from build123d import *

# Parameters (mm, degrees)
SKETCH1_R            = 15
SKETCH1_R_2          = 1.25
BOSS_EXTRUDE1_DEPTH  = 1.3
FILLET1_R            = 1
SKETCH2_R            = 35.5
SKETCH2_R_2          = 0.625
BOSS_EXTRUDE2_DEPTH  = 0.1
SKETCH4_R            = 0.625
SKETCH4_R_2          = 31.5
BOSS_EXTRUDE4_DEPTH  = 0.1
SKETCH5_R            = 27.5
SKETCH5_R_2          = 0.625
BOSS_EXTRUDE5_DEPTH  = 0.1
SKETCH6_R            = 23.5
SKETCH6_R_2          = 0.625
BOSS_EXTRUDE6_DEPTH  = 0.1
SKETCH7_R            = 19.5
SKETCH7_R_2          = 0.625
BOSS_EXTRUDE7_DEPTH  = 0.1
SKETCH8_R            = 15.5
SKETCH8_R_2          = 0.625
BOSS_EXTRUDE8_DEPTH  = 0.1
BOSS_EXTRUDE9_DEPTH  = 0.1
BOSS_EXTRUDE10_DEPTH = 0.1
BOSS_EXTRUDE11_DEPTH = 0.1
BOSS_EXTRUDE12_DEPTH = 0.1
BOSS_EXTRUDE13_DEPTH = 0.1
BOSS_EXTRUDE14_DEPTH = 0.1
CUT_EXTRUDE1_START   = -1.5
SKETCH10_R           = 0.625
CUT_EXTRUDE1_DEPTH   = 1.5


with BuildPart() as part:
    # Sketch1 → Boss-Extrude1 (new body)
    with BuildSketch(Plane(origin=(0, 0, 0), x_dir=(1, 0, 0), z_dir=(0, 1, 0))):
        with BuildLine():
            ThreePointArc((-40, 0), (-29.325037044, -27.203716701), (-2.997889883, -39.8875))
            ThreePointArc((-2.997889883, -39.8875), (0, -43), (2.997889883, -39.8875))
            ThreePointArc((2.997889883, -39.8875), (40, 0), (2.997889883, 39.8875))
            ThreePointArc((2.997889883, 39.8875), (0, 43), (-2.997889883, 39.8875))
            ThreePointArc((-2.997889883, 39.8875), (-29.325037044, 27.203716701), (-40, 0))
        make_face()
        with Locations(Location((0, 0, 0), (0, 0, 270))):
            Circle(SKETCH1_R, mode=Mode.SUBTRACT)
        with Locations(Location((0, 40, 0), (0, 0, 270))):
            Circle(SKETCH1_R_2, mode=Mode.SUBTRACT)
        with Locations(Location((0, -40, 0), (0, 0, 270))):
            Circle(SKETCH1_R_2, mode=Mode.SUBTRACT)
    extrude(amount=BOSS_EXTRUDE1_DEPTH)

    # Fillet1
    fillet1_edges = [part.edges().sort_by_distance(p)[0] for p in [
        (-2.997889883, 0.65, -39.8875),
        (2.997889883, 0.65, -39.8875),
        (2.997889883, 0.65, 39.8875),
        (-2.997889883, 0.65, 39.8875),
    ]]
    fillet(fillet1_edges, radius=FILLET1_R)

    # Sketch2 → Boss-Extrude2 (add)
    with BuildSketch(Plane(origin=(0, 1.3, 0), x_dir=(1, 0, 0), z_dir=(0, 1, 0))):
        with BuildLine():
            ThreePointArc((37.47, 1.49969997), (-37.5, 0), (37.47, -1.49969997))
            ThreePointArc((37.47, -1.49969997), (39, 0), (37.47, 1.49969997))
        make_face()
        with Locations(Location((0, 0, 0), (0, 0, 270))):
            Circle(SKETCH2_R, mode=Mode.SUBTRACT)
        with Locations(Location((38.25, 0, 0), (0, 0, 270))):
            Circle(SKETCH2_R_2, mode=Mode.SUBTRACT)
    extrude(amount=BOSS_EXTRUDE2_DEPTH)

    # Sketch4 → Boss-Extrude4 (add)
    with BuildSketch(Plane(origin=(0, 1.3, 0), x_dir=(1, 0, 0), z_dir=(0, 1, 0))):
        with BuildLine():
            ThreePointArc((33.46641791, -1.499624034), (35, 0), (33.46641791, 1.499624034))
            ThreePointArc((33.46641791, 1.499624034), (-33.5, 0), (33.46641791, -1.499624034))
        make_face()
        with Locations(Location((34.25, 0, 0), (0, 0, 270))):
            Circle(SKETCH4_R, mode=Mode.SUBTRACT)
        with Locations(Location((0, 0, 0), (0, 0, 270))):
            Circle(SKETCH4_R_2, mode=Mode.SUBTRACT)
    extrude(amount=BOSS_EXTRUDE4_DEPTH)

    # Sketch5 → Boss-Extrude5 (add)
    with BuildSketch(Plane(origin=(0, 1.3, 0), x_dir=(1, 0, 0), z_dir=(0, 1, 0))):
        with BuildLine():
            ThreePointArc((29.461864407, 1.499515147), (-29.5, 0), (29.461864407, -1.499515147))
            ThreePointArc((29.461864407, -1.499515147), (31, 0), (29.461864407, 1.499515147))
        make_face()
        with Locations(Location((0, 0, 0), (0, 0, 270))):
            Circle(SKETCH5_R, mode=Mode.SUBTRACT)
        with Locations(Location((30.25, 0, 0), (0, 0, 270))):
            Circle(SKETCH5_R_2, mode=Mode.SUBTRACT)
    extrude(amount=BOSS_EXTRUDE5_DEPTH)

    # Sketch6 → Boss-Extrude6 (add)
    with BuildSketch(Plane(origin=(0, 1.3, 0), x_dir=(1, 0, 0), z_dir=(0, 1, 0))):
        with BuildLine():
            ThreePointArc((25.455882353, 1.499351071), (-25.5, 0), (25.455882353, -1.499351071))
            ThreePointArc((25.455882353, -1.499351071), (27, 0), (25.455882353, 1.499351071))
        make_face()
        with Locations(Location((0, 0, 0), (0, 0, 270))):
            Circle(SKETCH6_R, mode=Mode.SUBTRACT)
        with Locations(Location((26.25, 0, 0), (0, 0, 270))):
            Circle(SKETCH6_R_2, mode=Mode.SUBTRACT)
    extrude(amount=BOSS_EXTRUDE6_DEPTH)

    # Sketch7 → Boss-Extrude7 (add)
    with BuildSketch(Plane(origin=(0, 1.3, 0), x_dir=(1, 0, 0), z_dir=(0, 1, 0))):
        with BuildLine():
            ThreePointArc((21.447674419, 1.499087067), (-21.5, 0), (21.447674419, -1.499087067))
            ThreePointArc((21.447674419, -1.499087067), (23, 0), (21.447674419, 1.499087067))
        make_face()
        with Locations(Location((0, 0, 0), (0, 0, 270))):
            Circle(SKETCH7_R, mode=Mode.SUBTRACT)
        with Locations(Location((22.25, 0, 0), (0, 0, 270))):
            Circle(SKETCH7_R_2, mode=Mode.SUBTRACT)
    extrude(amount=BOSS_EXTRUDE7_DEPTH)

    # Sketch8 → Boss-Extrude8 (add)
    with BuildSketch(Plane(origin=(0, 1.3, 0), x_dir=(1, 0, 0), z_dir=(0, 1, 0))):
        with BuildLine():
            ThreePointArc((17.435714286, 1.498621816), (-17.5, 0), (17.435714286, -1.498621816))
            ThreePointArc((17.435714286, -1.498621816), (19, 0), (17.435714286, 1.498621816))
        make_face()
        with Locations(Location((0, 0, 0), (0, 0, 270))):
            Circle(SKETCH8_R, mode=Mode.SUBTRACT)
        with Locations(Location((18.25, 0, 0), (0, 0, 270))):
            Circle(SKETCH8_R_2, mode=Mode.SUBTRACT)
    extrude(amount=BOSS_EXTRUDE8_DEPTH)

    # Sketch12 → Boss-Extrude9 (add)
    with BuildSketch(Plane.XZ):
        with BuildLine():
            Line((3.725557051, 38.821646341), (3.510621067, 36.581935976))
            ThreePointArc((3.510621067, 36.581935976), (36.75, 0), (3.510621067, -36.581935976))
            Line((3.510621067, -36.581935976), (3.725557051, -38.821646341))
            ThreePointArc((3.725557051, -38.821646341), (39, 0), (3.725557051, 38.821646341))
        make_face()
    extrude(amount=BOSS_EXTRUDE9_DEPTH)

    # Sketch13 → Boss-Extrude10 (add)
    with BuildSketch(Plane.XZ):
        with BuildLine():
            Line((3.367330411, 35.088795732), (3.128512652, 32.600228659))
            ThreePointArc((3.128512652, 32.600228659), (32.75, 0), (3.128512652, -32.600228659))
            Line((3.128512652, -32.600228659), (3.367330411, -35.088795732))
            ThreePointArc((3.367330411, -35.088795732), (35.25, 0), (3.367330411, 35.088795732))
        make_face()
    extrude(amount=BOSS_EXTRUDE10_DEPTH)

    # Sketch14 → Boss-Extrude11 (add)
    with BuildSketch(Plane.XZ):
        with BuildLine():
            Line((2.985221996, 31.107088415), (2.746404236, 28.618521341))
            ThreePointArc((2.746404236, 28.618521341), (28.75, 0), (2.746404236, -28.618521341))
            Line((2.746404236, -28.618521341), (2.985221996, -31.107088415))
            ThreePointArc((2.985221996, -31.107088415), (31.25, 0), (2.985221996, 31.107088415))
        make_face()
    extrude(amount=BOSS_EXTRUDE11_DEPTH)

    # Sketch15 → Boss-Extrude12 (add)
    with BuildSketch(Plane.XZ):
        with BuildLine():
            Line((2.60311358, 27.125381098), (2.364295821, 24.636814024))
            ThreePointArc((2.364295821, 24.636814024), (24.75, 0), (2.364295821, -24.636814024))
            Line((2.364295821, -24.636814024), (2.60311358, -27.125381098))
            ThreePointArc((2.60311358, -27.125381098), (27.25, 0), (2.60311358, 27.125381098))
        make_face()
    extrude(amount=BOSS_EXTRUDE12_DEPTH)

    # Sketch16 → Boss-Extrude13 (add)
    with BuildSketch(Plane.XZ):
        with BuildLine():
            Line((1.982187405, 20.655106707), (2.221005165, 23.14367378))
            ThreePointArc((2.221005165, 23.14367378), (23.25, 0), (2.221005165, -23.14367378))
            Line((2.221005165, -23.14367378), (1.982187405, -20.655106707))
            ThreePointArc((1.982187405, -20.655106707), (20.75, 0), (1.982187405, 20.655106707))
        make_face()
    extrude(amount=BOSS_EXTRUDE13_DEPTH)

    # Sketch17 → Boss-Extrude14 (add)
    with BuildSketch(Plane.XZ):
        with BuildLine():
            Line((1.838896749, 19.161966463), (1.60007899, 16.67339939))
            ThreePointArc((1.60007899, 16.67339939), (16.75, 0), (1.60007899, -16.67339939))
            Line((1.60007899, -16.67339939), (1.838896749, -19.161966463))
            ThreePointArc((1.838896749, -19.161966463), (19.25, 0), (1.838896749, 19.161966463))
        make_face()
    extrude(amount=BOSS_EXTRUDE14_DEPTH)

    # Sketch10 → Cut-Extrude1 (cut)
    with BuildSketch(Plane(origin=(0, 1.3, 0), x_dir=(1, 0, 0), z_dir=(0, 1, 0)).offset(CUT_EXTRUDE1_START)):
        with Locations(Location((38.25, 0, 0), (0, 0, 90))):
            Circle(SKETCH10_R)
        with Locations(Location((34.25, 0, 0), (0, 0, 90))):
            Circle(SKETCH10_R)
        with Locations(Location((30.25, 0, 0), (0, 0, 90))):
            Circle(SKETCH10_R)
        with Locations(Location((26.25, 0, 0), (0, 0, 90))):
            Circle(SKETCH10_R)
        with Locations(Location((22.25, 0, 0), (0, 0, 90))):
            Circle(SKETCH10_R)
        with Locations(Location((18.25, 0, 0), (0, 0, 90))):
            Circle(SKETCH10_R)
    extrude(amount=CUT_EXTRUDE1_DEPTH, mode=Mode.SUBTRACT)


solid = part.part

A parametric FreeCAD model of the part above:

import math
import FreeCAD as App
import Part
import Sketcher
from FreeCAD import Vector


def edges_at(feature, points):
    """Names of the edges that pass closest to the given points."""
    edges = feature.Shape.Edges
    near = lambda p: min(range(len(edges)), key=lambda i: edges[i].distToShape(Part.Vertex(*p))[0])
    return sorted({f"Edge{near(p) + 1}" for p in points})

doc = App.newDocument("Part")
body = doc.addObject("PartDesign::Body", "Body")

# Sketch on XZ plane
sketch1 = doc.addObject("Sketcher::SketchObject", "Sketch")
body.addObject(sketch1)
sketch1.AttachmentSupport = (doc.XZ_Plane, [""])
sketch1.MapMode = "FlatFace"
sketch1.addGeometry([
    Part.ArcOfCircle(Part.Circle(Vector(0, 0, 0), Vector(0, 0, 1), 40), math.radians(94), math.radians(180)),  # 0
    Part.ArcOfCircle(Part.Circle(Vector(0, 40, 0), Vector(0, 0, 1), 3), math.radians(-2), math.radians(182)),  # 1
    Part.ArcOfCircle(Part.Circle(Vector(0, 0, 0), Vector(0, 0, 1), 40), math.radians(-86), math.radians(86)),  # 2
    Part.ArcOfCircle(Part.Circle(Vector(0, -40, 0), Vector(0, 0, 1), 3), math.radians(178), math.radians(362)),  # 3
    Part.ArcOfCircle(Part.Circle(Vector(0, 0, 0), Vector(0, 0, 1), 40), math.radians(-180), math.radians(-94)),  # 4
    Part.Circle(Vector(0, 40, 0), Vector(0, 0, 1), 1.2),  # 5
    Part.Circle(Vector(0, 0, 0), Vector(0, 0, 1), 15),  # 6
    Part.Circle(Vector(0, -40, 0), Vector(0, 0, 1), 1.2),  # 7
], False)
sketch1.addConstraint([
    Sketcher.Constraint("Coincident", 0, 1, 1, 2),
    Sketcher.Constraint("Coincident", 1, 1, 2, 2),
    Sketcher.Constraint("Coincident", 2, 1, 3, 2),
    Sketcher.Constraint("Coincident", 3, 1, 4, 2),
    Sketcher.Constraint("Tangent", 4, 1, 0, 2),
    Sketcher.Constraint("Coincident", 0, 3, -1, 1),
    Sketcher.Constraint("Coincident", 2, 3, -1, 1),
    Sketcher.Constraint("Coincident", 6, 3, -1, 1),
    Sketcher.Constraint("Coincident", 5, 3, 1, 3),
    Sketcher.Constraint("Coincident", 7, 3, 3, 3),
    Sketcher.Constraint("Equal", 0, 2),
    Sketcher.Constraint("Equal", 1, 3),
    Sketcher.Constraint("Equal", 2, 4),
    Sketcher.Constraint("Equal", 5, 7),
    Sketcher.Constraint("Symmetric", 1, 3, 3, 3, -1, 1),
    Sketcher.Constraint("PointOnObject", 1, 3, -2),
    Sketcher.Constraint("PointOnObject", 4, 1, -1),
    Sketcher.Constraint("Diameter", 6, 30.0),
    Sketcher.Constraint("Radius", 0, 40.0),
    Sketcher.Constraint("Radius", 1, 3.0),
    Sketcher.Constraint("Diameter", 5, 2.5),
    Sketcher.Constraint("DistanceY", -1, 1, 1, 3, 40.0),
])
pad1 = doc.addObject("PartDesign::Pad", "Pad")
body.addObject(pad1)
pad1.Profile = sketch1
pad1.Length = 1.3
pad1.Reversed = True
doc.recompute()

fillet = doc.addObject("PartDesign::Fillet", "Fillet")
body.addObject(fillet)
fillet.Base = (pad1, edges_at(pad1, [
    (-2.998, 0.65, -39.888),
    (2.998, 0.65, -39.888),
    (2.998, 0.65, 39.888),
    (-2.998, 0.65, 39.888),
]))
fillet.Radius = 1

# Sketch on XZ plane
sketch2 = doc.addObject("Sketcher::SketchObject", "Sketch001")
body.addObject(sketch2)
sketch2.AttachmentSupport = (doc.XZ_Plane, [""])
sketch2.MapMode = "FlatFace"
sketch2.AttachmentOffset = App.Placement(Vector(0, 0, -1.3), App.Rotation())
sketch2.addGeometry([
    Part.ArcOfCircle(Part.Circle(Vector(0, 0, 0), Vector(0, 0, 1), 37.5), math.radians(2), math.radians(358)),
    Part.ArcOfCircle(Part.Circle(Vector(37.5, 0, 0), Vector(0, 0, 1), 1.5), math.radians(-91), math.radians(91)),
    Part.Circle(Vector(0, 0, 0), Vector(0, 0, 1), 35.5),
    Part.Circle(Vector(38.2, 0, 0), Vector(0, 0, 1), 0.6),
], False)
sketch2.addConstraint([
    Sketcher.Constraint("Coincident", 0, 1, 1, 2),
    Sketcher.Constraint("Coincident", 1, 1, 0, 2),
    Sketcher.Constraint("Coincident", 0, 3, -1, 1),
    Sketcher.Constraint("Coincident", 2, 3, -1, 1),
    Sketcher.Constraint("PointOnObject", 1, 3, -1),
    Sketcher.Constraint("PointOnObject", 3, 3, -1),
    Sketcher.Constraint("Diameter", 2, 71.0),
    Sketcher.Constraint("Radius", 0, 37.5),
    Sketcher.Constraint("Radius", 1, 1.5),
    Sketcher.Constraint("Diameter", 3, 1.25),
    Sketcher.Constraint("DistanceX", -1, 1, 1, 3, 37.5),
    Sketcher.Constraint("DistanceX", -1, 1, 3, 3, 38.25),
])
pad2 = doc.addObject("PartDesign::Pad", "Pad001")
body.addObject(pad2)
pad2.Profile = sketch2
pad2.Length = 0.1
pad2.Reversed = True

# Sketch on XZ plane
sketch3 = doc.addObject("Sketcher::SketchObject", "Sketch002")
body.addObject(sketch3)
sketch3.AttachmentSupport = (doc.XZ_Plane, [""])
sketch3.MapMode = "FlatFace"
sketch3.AttachmentOffset = App.Placement(Vector(0, 0, -1.3), App.Rotation())
sketch3.addGeometry([
    Part.ArcOfCircle(Part.Circle(Vector(33.5, 0, 0), Vector(0, 0, 1), 1.5), math.radians(-91), math.radians(91)),
    Part.ArcOfCircle(Part.Circle(Vector(0, 0, 0), Vector(0, 0, 1), 33.5), math.radians(3), math.radians(357)),
    Part.Circle(Vector(0, 0, 0), Vector(0, 0, 1), 31.5),
    Part.Circle(Vector(34.2, 0, 0), Vector(0, 0, 1), 0.6),
], False)
sketch3.addConstraint([
    Sketcher.Constraint("Coincident", 0, 1, 1, 2),
    Sketcher.Constraint("Coincident", 1, 1, 0, 2),
    Sketcher.Constraint("Coincident", 1, 3, -1, 1),
    Sketcher.Constraint("Coincident", 2, 3, -1, 1),
    Sketcher.Constraint("PointOnObject", 0, 3, -1),
    Sketcher.Constraint("PointOnObject", 3, 3, -1),
    Sketcher.Constraint("Diameter", 2, 63.0),
    Sketcher.Constraint("Radius", 0, 1.5),
    Sketcher.Constraint("Radius", 1, 33.5),
    Sketcher.Constraint("Diameter", 3, 1.25),
    Sketcher.Constraint("DistanceX", -1, 1, 0, 3, 33.5),
    Sketcher.Constraint("DistanceX", -1, 1, 3, 3, 34.25),
])
pad3 = doc.addObject("PartDesign::Pad", "Pad002")
body.addObject(pad3)
pad3.Profile = sketch3
pad3.Length = 0.1
pad3.Reversed = True

# Sketch on XZ plane
sketch4 = doc.addObject("Sketcher::SketchObject", "Sketch003")
body.addObject(sketch4)
sketch4.AttachmentSupport = (doc.XZ_Plane, [""])
sketch4.MapMode = "FlatFace"
sketch4.AttachmentOffset = App.Placement(Vector(0, 0, -1.3), App.Rotation())
sketch4.addGeometry([
    Part.ArcOfCircle(Part.Circle(Vector(0, 0, 0), Vector(0, 0, 1), 29.5), math.radians(3), math.radians(357)),
    Part.ArcOfCircle(Part.Circle(Vector(29.5, 0, 0), Vector(0, 0, 1), 1.5), math.radians(-91), math.radians(91)),
    Part.Circle(Vector(0, 0, 0), Vector(0, 0, 1), 27.5),
    Part.Circle(Vector(30.2, 0, 0), Vector(0, 0, 1), 0.6),
], False)
sketch4.addConstraint([
    Sketcher.Constraint("Coincident", 0, 1, 1, 2),
    Sketcher.Constraint("Coincident", 1, 1, 0, 2),
    Sketcher.Constraint("Coincident", 0, 3, -1, 1),
    Sketcher.Constraint("Coincident", 2, 3, -1, 1),
    Sketcher.Constraint("PointOnObject", 1, 3, -1),
    Sketcher.Constraint("PointOnObject", 3, 3, -1),
    Sketcher.Constraint("Diameter", 2, 55.0),
    Sketcher.Constraint("Radius", 0, 29.5),
    Sketcher.Constraint("Radius", 1, 1.5),
    Sketcher.Constraint("Diameter", 3, 1.25),
    Sketcher.Constraint("DistanceX", -1, 1, 1, 3, 29.5),
    Sketcher.Constraint("DistanceX", -1, 1, 3, 3, 30.25),
])
pad4 = doc.addObject("PartDesign::Pad", "Pad003")
body.addObject(pad4)
pad4.Profile = sketch4
pad4.Length = 0.1
pad4.Reversed = True

# Sketch on XZ plane
sketch5 = doc.addObject("Sketcher::SketchObject", "Sketch004")
body.addObject(sketch5)
sketch5.AttachmentSupport = (doc.XZ_Plane, [""])
sketch5.MapMode = "FlatFace"
sketch5.AttachmentOffset = App.Placement(Vector(0, 0, -1.3), App.Rotation())
sketch5.addGeometry([
    Part.ArcOfCircle(Part.Circle(Vector(0, 0, 0), Vector(0, 0, 1), 25.5), math.radians(3), math.radians(357)),
    Part.ArcOfCircle(Part.Circle(Vector(25.5, 0, 0), Vector(0, 0, 1), 1.5), math.radians(-92), math.radians(92)),
    Part.Circle(Vector(0, 0, 0), Vector(0, 0, 1), 23.5),
    Part.Circle(Vector(26.2, 0, 0), Vector(0, 0, 1), 0.6),
], False)
sketch5.addConstraint([
    Sketcher.Constraint("Coincident", 0, 1, 1, 2),
    Sketcher.Constraint("Coincident", 1, 1, 0, 2),
    Sketcher.Constraint("Coincident", 0, 3, -1, 1),
    Sketcher.Constraint("Coincident", 2, 3, -1, 1),
    Sketcher.Constraint("PointOnObject", 1, 3, -1),
    Sketcher.Constraint("PointOnObject", 3, 3, -1),
    Sketcher.Constraint("Diameter", 2, 47.0),
    Sketcher.Constraint("Radius", 0, 25.5),
    Sketcher.Constraint("Radius", 1, 1.5),
    Sketcher.Constraint("Diameter", 3, 1.25),
    Sketcher.Constraint("DistanceX", -1, 1, 1, 3, 25.5),
    Sketcher.Constraint("DistanceX", -1, 1, 3, 3, 26.25),
])
pad5 = doc.addObject("PartDesign::Pad", "Pad004")
body.addObject(pad5)
pad5.Profile = sketch5
pad5.Length = 0.1
pad5.Reversed = True

# Sketch on XZ plane
sketch6 = doc.addObject("Sketcher::SketchObject", "Sketch005")
body.addObject(sketch6)
sketch6.AttachmentSupport = (doc.XZ_Plane, [""])
sketch6.MapMode = "FlatFace"
sketch6.AttachmentOffset = App.Placement(Vector(0, 0, -1.3), App.Rotation())
sketch6.addGeometry([
    Part.ArcOfCircle(Part.Circle(Vector(0, 0, 0), Vector(0, 0, 1), 21.5), math.radians(4), math.radians(356)),
    Part.ArcOfCircle(Part.Circle(Vector(21.5, 0, 0), Vector(0, 0, 1), 1.5), math.radians(-92), math.radians(92)),
    Part.Circle(Vector(0, 0, 0), Vector(0, 0, 1), 19.5),
    Part.Circle(Vector(22.2, 0, 0), Vector(0, 0, 1), 0.6),
], False)
sketch6.addConstraint([
    Sketcher.Constraint("Coincident", 0, 1, 1, 2),
    Sketcher.Constraint("Coincident", 1, 1, 0, 2),
    Sketcher.Constraint("Coincident", 0, 3, -1, 1),
    Sketcher.Constraint("Coincident", 2, 3, -1, 1),
    Sketcher.Constraint("PointOnObject", 1, 3, -1),
    Sketcher.Constraint("PointOnObject", 3, 3, -1),
    Sketcher.Constraint("Diameter", 2, 39.0),
    Sketcher.Constraint("Radius", 0, 21.5),
    Sketcher.Constraint("Radius", 1, 1.5),
    Sketcher.Constraint("Diameter", 3, 1.25),
    Sketcher.Constraint("DistanceX", -1, 1, 1, 3, 21.5),
    Sketcher.Constraint("DistanceX", -1, 1, 3, 3, 22.25),
])
pad6 = doc.addObject("PartDesign::Pad", "Pad005")
body.addObject(pad6)
pad6.Profile = sketch6
pad6.Length = 0.1
pad6.Reversed = True

# Sketch on XZ plane
sketch7 = doc.addObject("Sketcher::SketchObject", "Sketch006")
body.addObject(sketch7)
sketch7.AttachmentSupport = (doc.XZ_Plane, [""])
sketch7.MapMode = "FlatFace"
sketch7.AttachmentOffset = App.Placement(Vector(0, 0, -1.3), App.Rotation())
sketch7.addGeometry([
    Part.ArcOfCircle(Part.Circle(Vector(0, 0, 0), Vector(0, 0, 1), 17.5), math.radians(5), math.radians(355)),
    Part.ArcOfCircle(Part.Circle(Vector(17.5, 0, 0), Vector(0, 0, 1), 1.5), math.radians(-92), math.radians(92)),
    Part.Circle(Vector(0, 0, 0), Vector(0, 0, 1), 15.5),
    Part.Circle(Vector(18.2, 0, 0), Vector(0, 0, 1), 0.6),
], False)
sketch7.addConstraint([
    Sketcher.Constraint("Coincident", 0, 1, 1, 2),
    Sketcher.Constraint("Coincident", 1, 1, 0, 2),
    Sketcher.Constraint("Coincident", 0, 3, -1, 1),
    Sketcher.Constraint("Coincident", 2, 3, -1, 1),
    Sketcher.Constraint("PointOnObject", 1, 3, -1),
    Sketcher.Constraint("PointOnObject", 3, 3, -1),
    Sketcher.Constraint("Diameter", 2, 31.0),
    Sketcher.Constraint("Radius", 0, 17.5),
    Sketcher.Constraint("Radius", 1, 1.5),
    Sketcher.Constraint("Diameter", 3, 1.25),
    Sketcher.Constraint("DistanceX", -1, 1, 1, 3, 17.5),
    Sketcher.Constraint("DistanceX", -1, 1, 3, 3, 18.25),
])
pad7 = doc.addObject("PartDesign::Pad", "Pad006")
body.addObject(pad7)
pad7.Profile = sketch7
pad7.Length = 0.1
pad7.Reversed = True

# Sketch on XZ plane
sketch8 = doc.addObject("Sketcher::SketchObject", "Sketch007")
body.addObject(sketch8)
sketch8.AttachmentSupport = (doc.XZ_Plane, [""])
sketch8.MapMode = "FlatFace"
sketch8.addGeometry([
    Part.LineSegment(Vector(3.7, 38.8, 0), Vector(3.5, 36.6, 0)),
    Part.ArcOfCircle(Part.Circle(Vector(0, 0, 0), Vector(0, 0, 1), 36.8), math.radians(-85), math.radians(85)),
    Part.LineSegment(Vector(3.5, -36.6, 0), Vector(3.7, -38.8, 0)),
    Part.ArcOfCircle(Part.Circle(Vector(0, 0, 0), Vector(0, 0, 1), 39), math.radians(-85), math.radians(85)),
], False)
sketch8.addConstraint([
    Sketcher.Constraint("Coincident", 0, 2, 1, 2),
    Sketcher.Constraint("Coincident", 1, 1, 2, 1),
    Sketcher.Constraint("Coincident", 2, 2, 3, 1),
    Sketcher.Constraint("Coincident", 3, 2, 0, 1),
    Sketcher.Constraint("Coincident", 1, 3, -1, 1),
    Sketcher.Constraint("Coincident", 3, 3, -1, 1),
    Sketcher.Constraint("Vertical", 0, 2, 1, 1),
    Sketcher.Constraint("Vertical", 2, 2, 3, 2),
    Sketcher.Constraint("Radius", 3, 39.0),
    Sketcher.Constraint("Radius", 1, 36.75),
    Sketcher.Constraint("DistanceX", -1, 1, 0, 2, 3.510621),
    Sketcher.Constraint("DistanceY", 2, 2, 1, 1, 2.23971),
])
pad8 = doc.addObject("PartDesign::Pad", "Pad007")
body.addObject(pad8)
pad8.Profile = sketch8
pad8.Length = 0.1

# Sketch on XZ plane
sketch9 = doc.addObject("Sketcher::SketchObject", "Sketch008")
body.addObject(sketch9)
sketch9.AttachmentSupport = (doc.XZ_Plane, [""])
sketch9.MapMode = "FlatFace"
sketch9.addGeometry([
    Part.LineSegment(Vector(3.4, 35.1, 0), Vector(3.1, 32.6, 0)),
    Part.ArcOfCircle(Part.Circle(Vector(0, 0, 0), Vector(0, 0, 1), 32.8), math.radians(-85), math.radians(85)),
    Part.LineSegment(Vector(3.1, -32.6, 0), Vector(3.4, -35.1, 0)),
    Part.ArcOfCircle(Part.Circle(Vector(0, 0, 0), Vector(0, 0, 1), 35.2), math.radians(-85), math.radians(85)),
], False)
sketch9.addConstraint([
    Sketcher.Constraint("Coincident", 0, 2, 1, 2),
    Sketcher.Constraint("Coincident", 1, 1, 2, 1),
    Sketcher.Constraint("Coincident", 2, 2, 3, 1),
    Sketcher.Constraint("Coincident", 3, 2, 0, 1),
    Sketcher.Constraint("Coincident", 1, 3, -1, 1),
    Sketcher.Constraint("Coincident", 3, 3, -1, 1),
    Sketcher.Constraint("Vertical", 0, 2, 1, 1),
    Sketcher.Constraint("Vertical", 2, 2, 3, 2),
    Sketcher.Constraint("Radius", 1, 32.75),
    Sketcher.Constraint("Radius", 3, 35.25),
    Sketcher.Constraint("DistanceY", -1, 1, 0, 2, 32.600229),
    Sketcher.Constraint("DistanceX", -1, 1, 2, 2, 3.36733),
])
pad9 = doc.addObject("PartDesign::Pad", "Pad008")
body.addObject(pad9)
pad9.Profile = sketch9
pad9.Length = 0.1

# Sketch on XZ plane
sketch10 = doc.addObject("Sketcher::SketchObject", "Sketch009")
body.addObject(sketch10)
sketch10.AttachmentSupport = (doc.XZ_Plane, [""])
sketch10.MapMode = "FlatFace"
sketch10.addGeometry([
    Part.LineSegment(Vector(3, 31.1, 0), Vector(2.7, 28.6, 0)),
    Part.ArcOfCircle(Part.Circle(Vector(0, 0, 0), Vector(0, 0, 1), 28.7), math.radians(-85), math.radians(85)),
    Part.LineSegment(Vector(2.7, -28.6, 0), Vector(3, -31.1, 0)),
    Part.ArcOfCircle(Part.Circle(Vector(0, 0, 0), Vector(0, 0, 1), 31.2), math.radians(-85), math.radians(85)),
], False)
sketch10.addConstraint([
    Sketcher.Constraint("Coincident", 0, 2, 1, 2),
    Sketcher.Constraint("Coincident", 1, 1, 2, 1),
    Sketcher.Constraint("Coincident", 2, 2, 3, 1),
    Sketcher.Constraint("Coincident", 3, 2, 0, 1),
    Sketcher.Constraint("Coincident", 1, 3, -1, 1),
    Sketcher.Constraint("Coincident", 3, 3, -1, 1),
    Sketcher.Constraint("Vertical", 0, 2, 1, 1),
    Sketcher.Constraint("Vertical", 2, 2, 3, 2),
    Sketcher.Constraint("Radius", 1, 28.75),
    Sketcher.Constraint("Radius", 3, 31.25),
    Sketcher.Constraint("DistanceY", -1, 1, 0, 2, 28.618521),
    Sketcher.Constraint("DistanceX", -1, 1, 2, 2, 2.985222),
])
pad10 = doc.addObject("PartDesign::Pad", "Pad009")
body.addObject(pad10)
pad10.Profile = sketch10
pad10.Length = 0.1

# Sketch on XZ plane
sketch11 = doc.addObject("Sketcher::SketchObject", "Sketch010")
body.addObject(sketch11)
sketch11.AttachmentSupport = (doc.XZ_Plane, [""])
sketch11.MapMode = "FlatFace"
sketch11.addGeometry([
    Part.LineSegment(Vector(2.6, 27.1, 0), Vector(2.4, 24.6, 0)),
    Part.ArcOfCircle(Part.Circle(Vector(0, 0, 0), Vector(0, 0, 1), 24.8), math.radians(-85), math.radians(85)),
    Part.LineSegment(Vector(2.4, -24.6, 0), Vector(2.6, -27.1, 0)),
    Part.ArcOfCircle(Part.Circle(Vector(0, 0, 0), Vector(0, 0, 1), 27.2), math.radians(-85), math.radians(85)),
], False)
sketch11.addConstraint([
    Sketcher.Constraint("Coincident", 0, 2, 1, 2),
    Sketcher.Constraint("Coincident", 1, 1, 2, 1),
    Sketcher.Constraint("Coincident", 2, 2, 3, 1),
    Sketcher.Constraint("Coincident", 3, 2, 0, 1),
    Sketcher.Constraint("Coincident", 1, 3, -1, 1),
    Sketcher.Constraint("Coincident", 3, 3, -1, 1),
    Sketcher.Constraint("Vertical", 0, 2, 1, 1),
    Sketcher.Constraint("Vertical", 2, 2, 3, 2),
    Sketcher.Constraint("Radius", 1, 24.75),
    Sketcher.Constraint("Radius", 3, 27.25),
    Sketcher.Constraint("DistanceY", 2, 2, -1, 1, 27.125381),
    Sketcher.Constraint("DistanceY", 1, 1, 0, 2, 49.273628),
])
pad11 = doc.addObject("PartDesign::Pad", "Pad010")
body.addObject(pad11)
pad11.Profile = sketch11
pad11.Length = 0.1

# Sketch on XZ plane
sketch12 = doc.addObject("Sketcher::SketchObject", "Sketch011")
body.addObject(sketch12)
sketch12.AttachmentSupport = (doc.XZ_Plane, [""])
sketch12.MapMode = "FlatFace"
sketch12.addGeometry([
    Part.LineSegment(Vector(2.2, 23.1, 0), Vector(2, 20.7, 0)),
    Part.ArcOfCircle(Part.Circle(Vector(0, 0, 0), Vector(0, 0, 1), 20.8), math.radians(-85), math.radians(85)),
    Part.LineSegment(Vector(2, -20.7, 0), Vector(2.2, -23.1, 0)),
    Part.ArcOfCircle(Part.Circle(Vector(0, 0, 0), Vector(0, 0, 1), 23.2), math.radians(-85), math.radians(85)),
], False)
sketch12.addConstraint([
    Sketcher.Constraint("Coincident", 0, 2, 1, 2),
    Sketcher.Constraint("Coincident", 1, 1, 2, 1),
    Sketcher.Constraint("Coincident", 2, 2, 3, 1),
    Sketcher.Constraint("Coincident", 3, 2, 0, 1),
    Sketcher.Constraint("Coincident", 1, 3, -1, 1),
    Sketcher.Constraint("Coincident", 3, 3, -1, 1),
    Sketcher.Constraint("Vertical", 0, 2, 1, 1),
    Sketcher.Constraint("Vertical", 2, 2, 3, 2),
    Sketcher.Constraint("Radius", 1, 20.75),
    Sketcher.Constraint("Radius", 3, 23.25),
    Sketcher.Constraint("DistanceY", 2, 2, 0, 2, 43.79878),
    Sketcher.Constraint("DistanceX", -1, 1, 0, 2, 1.982187),
])
pad12 = doc.addObject("PartDesign::Pad", "Pad011")
body.addObject(pad12)
pad12.Profile = sketch12
pad12.Length = 0.1

# Sketch on XZ plane
sketch13 = doc.addObject("Sketcher::SketchObject", "Sketch012")
body.addObject(sketch13)
sketch13.AttachmentSupport = (doc.XZ_Plane, [""])
sketch13.MapMode = "FlatFace"
sketch13.addGeometry([
    Part.LineSegment(Vector(1.8, 19.2, 0), Vector(1.6, 16.7, 0)),
    Part.ArcOfCircle(Part.Circle(Vector(0, 0, 0), Vector(0, 0, 1), 16.8), math.radians(-85), math.radians(85)),
    Part.LineSegment(Vector(1.6, -16.7, 0), Vector(1.8, -19.2, 0)),
    Part.ArcOfCircle(Part.Circle(Vector(0, 0, 0), Vector(0, 0, 1), 19.2), math.radians(-85), math.radians(85)),
], False)
sketch13.addConstraint([
    Sketcher.Constraint("Coincident", 0, 2, 1, 2),
    Sketcher.Constraint("Coincident", 1, 1, 2, 1),
    Sketcher.Constraint("Coincident", 2, 2, 3, 1),
    Sketcher.Constraint("Coincident", 3, 2, 0, 1),
    Sketcher.Constraint("Coincident", 1, 3, -1, 1),
    Sketcher.Constraint("Coincident", 3, 3, -1, 1),
    Sketcher.Constraint("Vertical", 0, 2, 1, 1),
    Sketcher.Constraint("Vertical", 2, 2, 3, 2),
    Sketcher.Constraint("Radius", 1, 16.75),
    Sketcher.Constraint("Radius", 3, 19.25),
    Sketcher.Constraint("DistanceY", -1, 1, 0, 2, 16.673399),
    Sketcher.Constraint("DistanceX", -1, 1, 2, 2, 1.838897),
])
pad13 = doc.addObject("PartDesign::Pad", "Pad012")
body.addObject(pad13)
pad13.Profile = sketch13
pad13.Length = 0.1

# Sketch on XZ plane
sketch14 = doc.addObject("Sketcher::SketchObject", "Sketch013")
body.addObject(sketch14)
sketch14.AttachmentSupport = (doc.XZ_Plane, [""])
sketch14.MapMode = "FlatFace"
sketch14.AttachmentOffset = App.Placement(Vector(0, 0, 0.2), App.Rotation())
sketch14.addGeometry([
    Part.Circle(Vector(38.2, 0, 0), Vector(0, 0, 1), 0.6),  # 0
    Part.Circle(Vector(34.2, 0, 0), Vector(0, 0, 1), 0.6),  # 1
    Part.Circle(Vector(30.2, 0, 0), Vector(0, 0, 1), 0.6),  # 2
    Part.Circle(Vector(26.2, 0, 0), Vector(0, 0, 1), 0.6),  # 3
    Part.Circle(Vector(22.2, 0, 0), Vector(0, 0, 1), 0.6),  # 4
    Part.Circle(Vector(18.2, 0, 0), Vector(0, 0, 1), 0.6),  # 5
], False)
sketch14.addConstraint([
    Sketcher.Constraint("Equal", 0, 1),
    Sketcher.Constraint("Equal", 1, 2),
    Sketcher.Constraint("Equal", 2, 3),
    Sketcher.Constraint("Equal", 3, 4),
    Sketcher.Constraint("Equal", 4, 5),
    Sketcher.Constraint("PointOnObject", 0, 3, -1),
    Sketcher.Constraint("PointOnObject", 1, 3, -1),
    Sketcher.Constraint("PointOnObject", 2, 3, -1),
    Sketcher.Constraint("PointOnObject", 3, 3, -1),
    Sketcher.Constraint("PointOnObject", 4, 3, -1),
    Sketcher.Constraint("PointOnObject", 5, 3, -1),
    Sketcher.Constraint("Diameter", 0, 1.25),
    Sketcher.Constraint("DistanceX", 1, 3, 0, 3, 4.0),
    Sketcher.Constraint("DistanceX", 2, 3, 1, 3, 4.0),
    Sketcher.Constraint("DistanceX", 3, 3, 2, 3, 4.0),
    Sketcher.Constraint("DistanceX", 4, 3, 3, 3, 4.0),
    Sketcher.Constraint("DistanceX", 5, 3, 4, 3, 4.0),
    Sketcher.Constraint("DistanceX", -1, 1, 0, 3, 38.25),
])
pocket1 = doc.addObject("PartDesign::Pocket", "Pocket")
body.addObject(pocket1)
pocket1.Profile = sketch14
pocket1.Length = 1.5

doc.recompute()
